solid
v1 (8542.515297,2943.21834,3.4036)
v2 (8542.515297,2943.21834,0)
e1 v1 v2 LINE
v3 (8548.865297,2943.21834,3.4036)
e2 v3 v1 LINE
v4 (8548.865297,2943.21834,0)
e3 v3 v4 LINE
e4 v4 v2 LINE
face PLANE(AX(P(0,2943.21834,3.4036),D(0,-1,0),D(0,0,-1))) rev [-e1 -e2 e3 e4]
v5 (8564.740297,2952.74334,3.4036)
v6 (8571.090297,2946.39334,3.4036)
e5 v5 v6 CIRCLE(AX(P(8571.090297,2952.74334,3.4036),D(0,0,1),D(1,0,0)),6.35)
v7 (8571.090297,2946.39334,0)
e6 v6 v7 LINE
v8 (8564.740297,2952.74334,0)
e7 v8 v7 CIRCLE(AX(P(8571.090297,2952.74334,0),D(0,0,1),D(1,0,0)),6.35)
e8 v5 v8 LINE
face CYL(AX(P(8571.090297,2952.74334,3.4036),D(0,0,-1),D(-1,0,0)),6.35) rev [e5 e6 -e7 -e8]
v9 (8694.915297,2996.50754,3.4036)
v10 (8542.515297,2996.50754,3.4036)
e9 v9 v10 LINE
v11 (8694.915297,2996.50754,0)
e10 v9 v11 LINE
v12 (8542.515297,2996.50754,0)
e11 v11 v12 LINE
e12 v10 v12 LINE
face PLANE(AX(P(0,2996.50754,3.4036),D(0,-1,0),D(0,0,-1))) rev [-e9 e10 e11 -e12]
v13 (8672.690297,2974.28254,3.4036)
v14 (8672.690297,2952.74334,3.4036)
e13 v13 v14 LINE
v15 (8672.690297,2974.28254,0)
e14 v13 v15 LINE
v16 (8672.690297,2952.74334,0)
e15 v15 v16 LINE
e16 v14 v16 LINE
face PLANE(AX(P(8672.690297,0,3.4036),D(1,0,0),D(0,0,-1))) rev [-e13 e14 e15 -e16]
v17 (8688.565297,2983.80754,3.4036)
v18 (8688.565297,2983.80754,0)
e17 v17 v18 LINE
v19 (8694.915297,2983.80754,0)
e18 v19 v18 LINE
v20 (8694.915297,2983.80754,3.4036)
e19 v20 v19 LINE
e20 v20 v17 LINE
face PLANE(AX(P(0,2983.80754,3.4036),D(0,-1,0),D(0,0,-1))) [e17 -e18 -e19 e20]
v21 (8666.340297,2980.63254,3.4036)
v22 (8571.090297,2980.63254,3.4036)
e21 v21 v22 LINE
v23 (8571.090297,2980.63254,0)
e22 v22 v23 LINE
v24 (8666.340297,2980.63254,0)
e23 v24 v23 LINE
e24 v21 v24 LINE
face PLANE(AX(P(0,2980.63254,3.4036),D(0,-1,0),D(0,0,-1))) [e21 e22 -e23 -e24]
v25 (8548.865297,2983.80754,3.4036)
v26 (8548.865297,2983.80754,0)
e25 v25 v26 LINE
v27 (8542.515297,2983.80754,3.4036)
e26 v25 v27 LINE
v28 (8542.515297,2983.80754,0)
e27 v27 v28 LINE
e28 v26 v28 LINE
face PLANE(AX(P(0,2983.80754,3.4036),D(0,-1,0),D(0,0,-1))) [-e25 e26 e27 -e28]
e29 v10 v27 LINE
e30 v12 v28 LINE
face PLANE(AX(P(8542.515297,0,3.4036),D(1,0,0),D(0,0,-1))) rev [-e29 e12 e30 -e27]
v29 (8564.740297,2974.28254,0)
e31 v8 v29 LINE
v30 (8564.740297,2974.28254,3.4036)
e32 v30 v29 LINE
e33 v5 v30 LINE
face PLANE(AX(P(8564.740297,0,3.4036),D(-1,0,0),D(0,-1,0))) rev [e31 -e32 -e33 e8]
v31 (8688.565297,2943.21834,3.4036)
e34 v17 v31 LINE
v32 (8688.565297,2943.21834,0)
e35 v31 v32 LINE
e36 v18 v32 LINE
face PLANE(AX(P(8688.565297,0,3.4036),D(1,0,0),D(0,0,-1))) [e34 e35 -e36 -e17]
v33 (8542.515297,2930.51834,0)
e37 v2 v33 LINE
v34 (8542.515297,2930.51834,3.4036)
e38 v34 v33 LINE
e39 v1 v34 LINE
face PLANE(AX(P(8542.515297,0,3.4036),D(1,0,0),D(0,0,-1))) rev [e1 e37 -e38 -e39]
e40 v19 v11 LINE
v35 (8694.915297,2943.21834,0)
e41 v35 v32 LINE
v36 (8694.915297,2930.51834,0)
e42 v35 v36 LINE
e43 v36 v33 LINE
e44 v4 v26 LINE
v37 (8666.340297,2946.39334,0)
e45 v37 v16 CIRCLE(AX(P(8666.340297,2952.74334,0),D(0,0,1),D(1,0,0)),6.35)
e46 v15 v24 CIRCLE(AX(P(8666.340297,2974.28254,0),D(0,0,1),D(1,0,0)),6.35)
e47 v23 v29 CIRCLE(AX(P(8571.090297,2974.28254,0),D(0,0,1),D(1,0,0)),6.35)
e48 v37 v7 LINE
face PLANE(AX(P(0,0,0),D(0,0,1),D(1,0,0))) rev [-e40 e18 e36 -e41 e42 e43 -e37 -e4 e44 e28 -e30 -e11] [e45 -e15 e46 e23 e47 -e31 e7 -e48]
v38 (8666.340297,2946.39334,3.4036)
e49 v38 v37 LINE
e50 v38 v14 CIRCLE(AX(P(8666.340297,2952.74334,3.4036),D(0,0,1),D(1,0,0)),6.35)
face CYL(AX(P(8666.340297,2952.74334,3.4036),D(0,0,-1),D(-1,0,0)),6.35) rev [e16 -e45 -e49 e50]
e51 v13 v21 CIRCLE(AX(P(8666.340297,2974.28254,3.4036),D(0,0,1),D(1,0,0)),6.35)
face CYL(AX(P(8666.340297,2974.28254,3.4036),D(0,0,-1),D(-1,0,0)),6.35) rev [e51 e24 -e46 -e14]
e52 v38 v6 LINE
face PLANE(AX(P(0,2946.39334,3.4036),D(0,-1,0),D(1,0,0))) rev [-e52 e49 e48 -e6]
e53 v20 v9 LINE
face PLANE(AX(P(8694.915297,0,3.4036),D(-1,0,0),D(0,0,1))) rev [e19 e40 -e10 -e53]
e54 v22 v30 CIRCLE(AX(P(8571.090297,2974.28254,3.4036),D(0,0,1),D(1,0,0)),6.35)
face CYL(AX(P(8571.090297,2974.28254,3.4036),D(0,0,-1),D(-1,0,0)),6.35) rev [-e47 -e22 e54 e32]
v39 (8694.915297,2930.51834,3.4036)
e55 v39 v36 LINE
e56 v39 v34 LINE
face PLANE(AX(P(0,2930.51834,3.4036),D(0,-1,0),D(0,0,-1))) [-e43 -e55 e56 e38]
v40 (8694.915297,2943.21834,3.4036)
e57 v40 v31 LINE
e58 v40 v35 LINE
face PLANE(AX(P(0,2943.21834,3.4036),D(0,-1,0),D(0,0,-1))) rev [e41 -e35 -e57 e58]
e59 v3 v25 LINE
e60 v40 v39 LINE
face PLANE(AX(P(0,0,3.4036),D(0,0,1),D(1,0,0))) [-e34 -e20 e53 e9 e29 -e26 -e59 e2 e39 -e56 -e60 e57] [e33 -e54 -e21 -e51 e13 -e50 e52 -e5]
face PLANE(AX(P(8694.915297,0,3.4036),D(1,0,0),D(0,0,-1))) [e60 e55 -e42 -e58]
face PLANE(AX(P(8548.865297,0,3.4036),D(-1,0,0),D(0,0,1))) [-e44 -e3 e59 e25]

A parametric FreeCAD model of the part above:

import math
import FreeCAD as App
import Part
import Sketcher
Q = App.Units.Quantity

doc = App.newDocument("Part")
body = doc.addObject("PartDesign::Body", "Body")

# Sketch on XY plane
sketch1 = body.newObject("Sketcher::SketchObject", "Sketch")
sketch1.AttachmentSupport = (doc.getObject("XY_Plane"), [""])
sketch1.MapMode = "FlatFace"
sketch1.addGeometry(Part.LineSegment(App.Vector(8549, 2984, 0), App.Vector(8549, 2943, 0)), False)
sketch1.addGeometry(Part.LineSegment(App.Vector(8549, 2943, 0), App.Vector(8543, 2943, 0)), False)
sketch1.addGeometry(Part.LineSegment(App.Vector(8543, 2943, 0), App.Vector(8543, 2931, 0)), False)
sketch1.addGeometry(Part.LineSegment(App.Vector(8543, 2931, 0), App.Vector(8695, 2931, 0)), False)
sketch1.addGeometry(Part.LineSegment(App.Vector(8695, 2931, 0), App.Vector(8695, 2943, 0)), False)
sketch1.addGeometry(Part.LineSegment(App.Vector(8695, 2943, 0), App.Vector(8689, 2943, 0)), False)
sketch1.addGeometry(Part.LineSegment(App.Vector(8689, 2943, 0), App.Vector(8689, 2984, 0)), False)
sketch1.addGeometry(Part.LineSegment(App.Vector(8689, 2984, 0), App.Vector(8695, 2984, 0)), False)
sketch1.addGeometry(Part.LineSegment(App.Vector(8695, 2984, 0), App.Vector(8695, 2997, 0)), False)
sketch1.addGeometry(Part.LineSegment(App.Vector(8695, 2997, 0), App.Vector(8543, 2997, 0)), False)
sketch1.addGeometry(Part.LineSegment(App.Vector(8543, 2997, 0), App.Vector(8543, 2984, 0)), False)
sketch1.addGeometry(Part.LineSegment(App.Vector(8543, 2984, 0), App.Vector(8549, 2984, 0)), False)
sketch1.addGeometry(Part.LineSegment(App.Vector(8666, 2946, 0), App.Vector(8571, 2946, 0)), False)
sketch1.addGeometry(Part.ArcOfCircle(Part.Circle(App.Vector(8571, 2953, 0), App.Vector(0, 0, 1), 6), math.radians(180), math.radians(270)), False)
sketch1.addGeometry(Part.LineSegment(App.Vector(8565, 2953, 0), App.Vector(8565, 2974, 0)), False)
sketch1.addGeometry(Part.ArcOfCircle(Part.Circle(App.Vector(8571, 2974, 0), App.Vector(0, 0, 1), 6), math.radians(90), math.radians(180)), False)
sketch1.addGeometry(Part.LineSegment(App.Vector(8571, 2981, 0), App.Vector(8666, 2981, 0)), False)
sketch1.addGeometry(Part.ArcOfCircle(Part.Circle(App.Vector(8666, 2974, 0), App.Vector(0, 0, 1), 6), math.radians(0), math.radians(90)), False)
sketch1.addGeometry(Part.LineSegment(App.Vector(8673, 2974, 0), App.Vector(8673, 2953, 0)), False)
sketch1.addGeometry(Part.ArcOfCircle(Part.Circle(App.Vector(8666, 2953, 0), App.Vector(0, 0, 1), 6), math.radians(-90), math.radians(0)), False)
sketch1.addConstraint(Sketcher.Constraint("Coincident", 0, 2, 1, 1))
sketch1.addConstraint(Sketcher.Constraint("Coincident", 1, 2, 2, 1))
sketch1.addConstraint(Sketcher.Constraint("Coincident", 2, 2, 3, 1))
sketch1.addConstraint(Sketcher.Constraint("Coincident", 3, 2, 4, 1))
sketch1.addConstraint(Sketcher.Constraint("Coincident", 4, 2, 5, 1))
sketch1.addConstraint(Sketcher.Constraint("Coincident", 5, 2, 6, 1))
sketch1.addConstraint(Sketcher.Constraint("Coincident", 6, 2, 7, 1))
sketch1.addConstraint(Sketcher.Constraint("Coincident", 7, 2, 8, 1))
sketch1.addConstraint(Sketcher.Constraint("Coincident", 8, 2, 9, 1))
sketch1.addConstraint(Sketcher.Constraint("Coincident", 9, 2, 10, 1))
sketch1.addConstraint(Sketcher.Constraint("Coincident", 10, 2, 11, 1))
sketch1.addConstraint(Sketcher.Constraint("Coincident", 11, 2, 0, 1))
sketch1.addConstraint(Sketcher.Constraint("Tangent", 12, 2, 13, 2))
sketch1.addConstraint(Sketcher.Constraint("Tangent", 13, 1, 14, 1))
sketch1.addConstraint(Sketcher.Constraint("Tangent", 14, 2, 15, 2))
sketch1.addConstraint(Sketcher.Constraint("Tangent", 15, 1, 16, 1))
sketch1.addConstraint(Sketcher.Constraint("Tangent", 16, 2, 17, 2))
sketch1.addConstraint(Sketcher.Constraint("Tangent", 17, 1, 18, 1))
sketch1.addConstraint(Sketcher.Constraint("Tangent", 18, 2, 19, 2))
sketch1.addConstraint(Sketcher.Constraint("Tangent", 19, 1, 12, 1))
sketch1.addConstraint(Sketcher.Constraint("Vertical", 0))
sketch1.addConstraint(Sketcher.Constraint("Horizontal", 1))
sketch1.addConstraint(Sketcher.Constraint("Vertical", 2))
sketch1.addConstraint(Sketcher.Constraint("Horizontal", 3))
sketch1.addConstraint(Sketcher.Constraint("Vertical", 4))
sketch1.addConstraint(Sketcher.Constraint("Horizontal", 5))
sketch1.addConstraint(Sketcher.Constraint("Vertical", 6))
sketch1.addConstraint(Sketcher.Constraint("Horizontal", 7))
sketch1.addConstraint(Sketcher.Constraint("Vertical", 8))
sketch1.addConstraint(Sketcher.Constraint("Horizontal", 9))
sketch1.addConstraint(Sketcher.Constraint("Vertical", 10))
sketch1.addConstraint(Sketcher.Constraint("Horizontal", 11))
sketch1.addConstraint(Sketcher.Constraint("Horizontal", 12))
sketch1.addConstraint(Sketcher.Constraint("Vertical", 14))
sketch1.addConstraint(Sketcher.Constraint("Horizontal", 16))
sketch1.addConstraint(Sketcher.Constraint("Vertical", 18))
sketch1.addConstraint(Sketcher.Constraint("Equal", 13, 15))
sketch1.addConstraint(Sketcher.Constraint("Equal", 15, 17))
sketch1.addConstraint(Sketcher.Constraint("Equal", 17, 19))
sketch1.addConstraint(Sketcher.Constraint("Horizontal", 1, 2, 4, 2))
sketch1.addConstraint(Sketcher.Constraint("Horizontal", 7, 2, 10, 2))
sketch1.addConstraint(Sketcher.Constraint("Vertical", 4, 2, 7, 2))
sketch1.addConstraint(Sketcher.Constraint("Vertical", 2, 2, 9, 2))
sketch1.addConstraint(Sketcher.Constraint("Equal", 1, 5))
sketch1.addConstraint(Sketcher.Constraint("Equal", 4, 8))
sketch1.addConstraint(Sketcher.Constraint("DistanceX", 3, 1, 3, 2, Q("6 in")))
sketch1.addConstraint(Sketcher.Constraint("Radius", 13, Q("0.25 in")))
sketch1.addConstraint(Sketcher.Constraint("DistanceY", 2, 2, 2, 1, Q("0.5 in")))
sketch1.addConstraint(Sketcher.Constraint("DistanceX", 1, 2, 1, 1, Q("0.25 in")))
sketch1.addConstraint(Sketcher.Constraint("DistanceX", 12, 2, 12, 1, Q("3.75 in")))
sketch1.addConstraint(Sketcher.Constraint("DistanceY", 0, 2, 0, 1, Q("1.598 in")))
sketch1.addConstraint(Sketcher.Constraint("DistanceY", 14, 1, 14, 2, Q("0.848 in")))
sketch1.addConstraint(Sketcher.Constraint("DistanceX", 0, 2, 13, 3, Q("0.875 in")))
sketch1.addConstraint(Sketcher.Constraint("DistanceY", 0, 2, 13, 3, Q("0.375 in")))
sketch1.addConstraint(Sketcher.Constraint("DistanceX", -1, 1, 13, 3, Q("337.4444999 in")))
sketch1.addConstraint(Sketcher.Constraint("DistanceY", -1, 1, 13, 3, Q("2952.74334 mm")))
pad1 = body.newObject("PartDesign::Pad", "Pad")
pad1.Profile = sketch1
pad1.Length = Q("0.134 in")

doc.recompute()
